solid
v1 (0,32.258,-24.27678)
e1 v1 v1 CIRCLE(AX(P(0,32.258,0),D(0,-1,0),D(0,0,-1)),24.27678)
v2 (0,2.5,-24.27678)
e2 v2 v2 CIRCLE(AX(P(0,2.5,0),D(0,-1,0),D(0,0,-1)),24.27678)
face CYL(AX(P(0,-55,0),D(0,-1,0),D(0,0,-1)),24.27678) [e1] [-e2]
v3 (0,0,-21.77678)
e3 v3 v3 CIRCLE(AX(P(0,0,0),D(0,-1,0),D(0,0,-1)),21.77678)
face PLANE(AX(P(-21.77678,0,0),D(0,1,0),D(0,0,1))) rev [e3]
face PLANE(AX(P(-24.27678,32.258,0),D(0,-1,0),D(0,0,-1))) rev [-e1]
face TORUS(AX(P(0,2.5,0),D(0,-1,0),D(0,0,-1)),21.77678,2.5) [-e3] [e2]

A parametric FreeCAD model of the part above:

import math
import FreeCAD as App
import Part
import Sketcher

V = App.Vector
Q = App.Units.Quantity

doc = App.newDocument("Part")
body = doc.addObject("PartDesign::Body", "Body")

sketch1 = body.newObject("Sketcher::SketchObject", "Sketch")
sketch1.AttachmentSupport = (doc.getObject("XY_Plane"), [""])
sketch1.MapMode = "FlatFace"
sketch1.addGeometry([
    Part.LineSegment(V(0, 32.3, 0), V(-24.3, 32.3, 0)),
    Part.LineSegment(V(-24.3, 32.3, 0), V(-24.3, 2.5, 0)),
    Part.ArcOfCircle(Part.Circle(V(-21.8, 2.5, 0), V(0, 0, 1), 2.5), math.radians(180), math.radians(270)),
    Part.LineSegment(V(-21.8, 0, 0), V(0, 0, 0)),
    Part.LineSegment(V(0, 0, 0), V(0, 32.3, 0)),
], False)
sketch1.addConstraint([
    Sketcher.Constraint("Coincident", 0, 2, 1, 1),
    Sketcher.Constraint("Tangent", 1, 2, 2, 1),
    Sketcher.Constraint("Tangent", 2, 2, 3, 1),
    Sketcher.Constraint("Coincident", 3, 2, 4, 1),
    Sketcher.Constraint("Coincident", 4, 2, 0, 1),
    Sketcher.Constraint("Horizontal", 0),
    Sketcher.Constraint("Vertical", 1),
    Sketcher.Constraint("Horizontal", 3),
    Sketcher.Constraint("Vertical", 4),
    Sketcher.Constraint("Coincident", 3, 2, -1, 1),
    Sketcher.Constraint("Radius", 2, Q("2.5 mm")),
    Sketcher.Constraint("DistanceY", 1, 2, 1, 1, Q("29.758 mm")),
    Sketcher.Constraint("DistanceX", 0, 2, 0, 1, Q("24.27678 mm")),
])
revolution = body.newObject("PartDesign::Revolution", "Revolution")
revolution.Profile = sketch1
revolution.ReferenceAxis = (sketch1, ["V_Axis"])
revolution.Angle = 360

doc.recompute()
